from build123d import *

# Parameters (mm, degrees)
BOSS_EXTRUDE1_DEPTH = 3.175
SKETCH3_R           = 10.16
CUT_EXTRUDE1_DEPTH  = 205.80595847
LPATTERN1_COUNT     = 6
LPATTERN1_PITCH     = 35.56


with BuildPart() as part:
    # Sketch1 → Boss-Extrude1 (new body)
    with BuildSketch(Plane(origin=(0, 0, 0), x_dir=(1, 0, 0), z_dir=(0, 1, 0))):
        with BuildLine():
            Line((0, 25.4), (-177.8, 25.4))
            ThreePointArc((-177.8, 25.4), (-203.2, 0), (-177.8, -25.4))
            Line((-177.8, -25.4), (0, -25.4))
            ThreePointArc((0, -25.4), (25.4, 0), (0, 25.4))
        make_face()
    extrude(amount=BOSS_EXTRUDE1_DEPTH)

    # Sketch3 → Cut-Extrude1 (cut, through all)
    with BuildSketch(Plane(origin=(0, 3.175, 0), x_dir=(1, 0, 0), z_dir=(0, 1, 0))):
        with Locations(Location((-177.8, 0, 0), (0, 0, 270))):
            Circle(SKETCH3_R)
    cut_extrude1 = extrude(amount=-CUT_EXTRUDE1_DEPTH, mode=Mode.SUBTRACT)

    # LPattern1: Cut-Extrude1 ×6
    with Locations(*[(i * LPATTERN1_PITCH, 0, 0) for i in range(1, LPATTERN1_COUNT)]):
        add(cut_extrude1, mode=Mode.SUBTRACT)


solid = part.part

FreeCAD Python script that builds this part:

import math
import FreeCAD as App
import Part
import Sketcher
from FreeCAD import Vector
Q = App.Units.Quantity

doc = App.newDocument("Part")
body = doc.addObject("PartDesign::Body", "Body")

sketch1 = body.newObject("Sketcher::SketchObject", "Sketch")
sketch1.AttachmentSupport = (doc.getObject("XZ_Plane"), [""])
sketch1.MapMode = "FlatFace"
sketch1.addGeometry([
    Part.LineSegment(Vector(0, -25.4, 0), Vector(-177.8, -25.4, 0)),
    Part.ArcOfCircle(Part.Circle(Vector(-177.8, 0, 0), Vector(0, 0, 1), 25.4), math.radians(90), math.radians(270)),
    Part.LineSegment(Vector(-177.8, 25.4, 0), Vector(0, 25.4, 0)),
    Part.ArcOfCircle(Part.Circle(Vector(0, 0, 0), Vector(0, 0, 1), 25.4), math.radians(-90), math.radians(90)),
], False)
sketch1.addConstraint([
    Sketcher.Constraint("Tangent", 0, 2, 1, 2),
    Sketcher.Constraint("Tangent", 1, 1, 2, 1),
    Sketcher.Constraint("Tangent", 2, 2, 3, 2),
    Sketcher.Constraint("Tangent", 3, 1, 0, 1),
    Sketcher.Constraint("Horizontal", 0),
    Sketcher.Constraint("Horizontal", 2),
    Sketcher.Constraint("Coincident", 3, 3, -1, 1),
    Sketcher.Constraint("Radius", 1, Q("1 in")),
    Sketcher.Constraint("DistanceX", 0, 2, 0, 1, Q("7 in")),
])
pad1 = body.newObject("PartDesign::Pad", "Pad")
pad1.Profile = sketch1
pad1.Length = Q("0.125 in")
pad1.Reversed = True

sketch2 = body.newObject("Sketcher::SketchObject", "Sketch001")
sketch2.AttachmentSupport = (doc.getObject("XZ_Plane"), [""])
sketch2.MapMode = "FlatFace"
sketch2.AttachmentOffset = App.Placement(Vector(0, 0, -0.125 * 25.4), App.Rotation())
sketch2.addGeometry(Part.Circle(Vector(-177.8, 0, 0), Vector(0, 0, 1), 10.16), False)
sketch2.addConstraint([
    Sketcher.Constraint("PointOnObject", 0, 3, -1),
    Sketcher.Constraint("Diameter", 0, Q("0.8 in")),
    Sketcher.Constraint("DistanceX", 0, 3, -1, 1, Q("7 in")),
])
pocket1 = body.newObject("PartDesign::Pocket", "Pocket")
pocket1.Profile = sketch2
pocket1.Type = "ThroughAll"
pocket1.Reversed = True
doc.recompute()

linearpattern = body.newObject("PartDesign::LinearPattern", "LinearPattern")
linearpattern.Originals = [pocket1]
linearpattern.Direction = (doc.getObject("X_Axis"), [""])
linearpattern.Mode = "offset"
linearpattern.Offset = Q("1.4 in")
linearpattern.Occurrences = 6
body.Tip = linearpattern

doc.recompute()
